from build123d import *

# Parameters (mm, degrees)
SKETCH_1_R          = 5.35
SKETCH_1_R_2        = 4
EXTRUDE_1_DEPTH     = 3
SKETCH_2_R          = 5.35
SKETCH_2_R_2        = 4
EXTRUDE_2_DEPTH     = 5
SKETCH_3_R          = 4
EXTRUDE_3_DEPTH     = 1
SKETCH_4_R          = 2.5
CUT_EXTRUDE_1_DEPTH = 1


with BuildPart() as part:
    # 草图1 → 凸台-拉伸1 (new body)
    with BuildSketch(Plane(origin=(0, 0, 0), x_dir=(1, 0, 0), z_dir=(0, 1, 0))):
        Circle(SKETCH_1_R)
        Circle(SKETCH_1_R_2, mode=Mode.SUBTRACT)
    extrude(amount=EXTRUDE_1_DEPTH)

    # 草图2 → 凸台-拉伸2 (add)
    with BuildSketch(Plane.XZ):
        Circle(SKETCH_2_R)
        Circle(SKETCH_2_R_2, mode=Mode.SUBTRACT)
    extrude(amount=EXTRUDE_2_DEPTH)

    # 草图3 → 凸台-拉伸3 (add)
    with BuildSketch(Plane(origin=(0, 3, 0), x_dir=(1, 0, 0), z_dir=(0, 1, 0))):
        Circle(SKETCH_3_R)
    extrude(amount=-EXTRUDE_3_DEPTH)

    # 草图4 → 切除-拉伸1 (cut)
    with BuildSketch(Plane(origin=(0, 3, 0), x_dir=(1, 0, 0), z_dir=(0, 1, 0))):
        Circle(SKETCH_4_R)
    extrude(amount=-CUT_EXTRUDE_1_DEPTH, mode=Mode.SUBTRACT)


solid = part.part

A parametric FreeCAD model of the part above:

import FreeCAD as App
import Part
import Sketcher

V = App.Vector

doc = App.newDocument("Part")
body = doc.addObject("PartDesign::Body", "Body")

# Sketch on XZ plane
sketch1 = body.newObject("Sketcher::SketchObject", "Sketch")
sketch1.AttachmentSupport = (doc.getObject("XZ_Plane"), [""])
sketch1.MapMode = "FlatFace"
sketch1.addGeometry([
    Part.Circle(V(0, 0, 0), V(0, 0, 1), 5.35),
    Part.Circle(V(0, 0, 0), V(0, 0, 1), 4),
], False)
sketch1.addConstraint([
    Sketcher.Constraint("Coincident", 0, 3, -1, 1),
    Sketcher.Constraint("Coincident", 1, 3, -1, 1),
    Sketcher.Constraint("Diameter", 1, 8.0),
    Sketcher.Constraint("Diameter", 0, 10.7),
])
pad1 = body.newObject("PartDesign::Pad", "Pad")
pad1.Profile = sketch1
pad1.Length = 3
pad1.Reversed = True

# Sketch on XZ plane
sketch2 = body.newObject("Sketcher::SketchObject", "Sketch001")
sketch2.AttachmentSupport = (doc.getObject("XZ_Plane"), [""])
sketch2.MapMode = "FlatFace"
sketch2.addGeometry([
    Part.Circle(V(0, 0, 0), V(0, 0, 1), 5.35),
    Part.Circle(V(0, 0, 0), V(0, 0, 1), 4),
], False)
sketch2.addConstraint([
    Sketcher.Constraint("Coincident", 0, 3, -1, 1),
    Sketcher.Constraint("Coincident", 1, 3, -1, 1),
    Sketcher.Constraint("Diameter", 1, 8.0),
    Sketcher.Constraint("Diameter", 0, 10.7),
])
pad2 = body.newObject("PartDesign::Pad", "Pad001")
pad2.Profile = sketch2
pad2.Length = 5

# Sketch on XZ plane
sketch3 = body.newObject("Sketcher::SketchObject", "Sketch002")
sketch3.AttachmentSupport = (doc.getObject("XZ_Plane"), [""])
sketch3.MapMode = "FlatFace"
sketch3.AttachmentOffset = App.Placement(V(0, 0, -3), App.Rotation())
sketch3.addGeometry(Part.Circle(V(0, 0, 0), V(0, 0, 1), 4), False)
sketch3.addConstraint([
    Sketcher.Constraint("Coincident", 0, 3, -1, 1),
    Sketcher.Constraint("Diameter", 0, 8.0),
])
pad3 = body.newObject("PartDesign::Pad", "Pad002")
pad3.Profile = sketch3
pad3.Length = 1

# Sketch on XZ plane
sketch4 = body.newObject("Sketcher::SketchObject", "Sketch003")
sketch4.AttachmentSupport = (doc.getObject("XZ_Plane"), [""])
sketch4.MapMode = "FlatFace"
sketch4.AttachmentOffset = App.Placement(V(0, 0, -3), App.Rotation())
sketch4.addGeometry(Part.Circle(V(0, 0, 0), V(0, 0, 1), 2.5), False)
sketch4.addConstraint([
    Sketcher.Constraint("Coincident", 0, 3, -1, 1),
    Sketcher.Constraint("Diameter", 0, 5.0),
])
pocket1 = body.newObject("PartDesign::Pocket", "Pocket")
pocket1.Profile = sketch4
pocket1.Length = 1
pocket1.Reversed = True

doc.recompute()
